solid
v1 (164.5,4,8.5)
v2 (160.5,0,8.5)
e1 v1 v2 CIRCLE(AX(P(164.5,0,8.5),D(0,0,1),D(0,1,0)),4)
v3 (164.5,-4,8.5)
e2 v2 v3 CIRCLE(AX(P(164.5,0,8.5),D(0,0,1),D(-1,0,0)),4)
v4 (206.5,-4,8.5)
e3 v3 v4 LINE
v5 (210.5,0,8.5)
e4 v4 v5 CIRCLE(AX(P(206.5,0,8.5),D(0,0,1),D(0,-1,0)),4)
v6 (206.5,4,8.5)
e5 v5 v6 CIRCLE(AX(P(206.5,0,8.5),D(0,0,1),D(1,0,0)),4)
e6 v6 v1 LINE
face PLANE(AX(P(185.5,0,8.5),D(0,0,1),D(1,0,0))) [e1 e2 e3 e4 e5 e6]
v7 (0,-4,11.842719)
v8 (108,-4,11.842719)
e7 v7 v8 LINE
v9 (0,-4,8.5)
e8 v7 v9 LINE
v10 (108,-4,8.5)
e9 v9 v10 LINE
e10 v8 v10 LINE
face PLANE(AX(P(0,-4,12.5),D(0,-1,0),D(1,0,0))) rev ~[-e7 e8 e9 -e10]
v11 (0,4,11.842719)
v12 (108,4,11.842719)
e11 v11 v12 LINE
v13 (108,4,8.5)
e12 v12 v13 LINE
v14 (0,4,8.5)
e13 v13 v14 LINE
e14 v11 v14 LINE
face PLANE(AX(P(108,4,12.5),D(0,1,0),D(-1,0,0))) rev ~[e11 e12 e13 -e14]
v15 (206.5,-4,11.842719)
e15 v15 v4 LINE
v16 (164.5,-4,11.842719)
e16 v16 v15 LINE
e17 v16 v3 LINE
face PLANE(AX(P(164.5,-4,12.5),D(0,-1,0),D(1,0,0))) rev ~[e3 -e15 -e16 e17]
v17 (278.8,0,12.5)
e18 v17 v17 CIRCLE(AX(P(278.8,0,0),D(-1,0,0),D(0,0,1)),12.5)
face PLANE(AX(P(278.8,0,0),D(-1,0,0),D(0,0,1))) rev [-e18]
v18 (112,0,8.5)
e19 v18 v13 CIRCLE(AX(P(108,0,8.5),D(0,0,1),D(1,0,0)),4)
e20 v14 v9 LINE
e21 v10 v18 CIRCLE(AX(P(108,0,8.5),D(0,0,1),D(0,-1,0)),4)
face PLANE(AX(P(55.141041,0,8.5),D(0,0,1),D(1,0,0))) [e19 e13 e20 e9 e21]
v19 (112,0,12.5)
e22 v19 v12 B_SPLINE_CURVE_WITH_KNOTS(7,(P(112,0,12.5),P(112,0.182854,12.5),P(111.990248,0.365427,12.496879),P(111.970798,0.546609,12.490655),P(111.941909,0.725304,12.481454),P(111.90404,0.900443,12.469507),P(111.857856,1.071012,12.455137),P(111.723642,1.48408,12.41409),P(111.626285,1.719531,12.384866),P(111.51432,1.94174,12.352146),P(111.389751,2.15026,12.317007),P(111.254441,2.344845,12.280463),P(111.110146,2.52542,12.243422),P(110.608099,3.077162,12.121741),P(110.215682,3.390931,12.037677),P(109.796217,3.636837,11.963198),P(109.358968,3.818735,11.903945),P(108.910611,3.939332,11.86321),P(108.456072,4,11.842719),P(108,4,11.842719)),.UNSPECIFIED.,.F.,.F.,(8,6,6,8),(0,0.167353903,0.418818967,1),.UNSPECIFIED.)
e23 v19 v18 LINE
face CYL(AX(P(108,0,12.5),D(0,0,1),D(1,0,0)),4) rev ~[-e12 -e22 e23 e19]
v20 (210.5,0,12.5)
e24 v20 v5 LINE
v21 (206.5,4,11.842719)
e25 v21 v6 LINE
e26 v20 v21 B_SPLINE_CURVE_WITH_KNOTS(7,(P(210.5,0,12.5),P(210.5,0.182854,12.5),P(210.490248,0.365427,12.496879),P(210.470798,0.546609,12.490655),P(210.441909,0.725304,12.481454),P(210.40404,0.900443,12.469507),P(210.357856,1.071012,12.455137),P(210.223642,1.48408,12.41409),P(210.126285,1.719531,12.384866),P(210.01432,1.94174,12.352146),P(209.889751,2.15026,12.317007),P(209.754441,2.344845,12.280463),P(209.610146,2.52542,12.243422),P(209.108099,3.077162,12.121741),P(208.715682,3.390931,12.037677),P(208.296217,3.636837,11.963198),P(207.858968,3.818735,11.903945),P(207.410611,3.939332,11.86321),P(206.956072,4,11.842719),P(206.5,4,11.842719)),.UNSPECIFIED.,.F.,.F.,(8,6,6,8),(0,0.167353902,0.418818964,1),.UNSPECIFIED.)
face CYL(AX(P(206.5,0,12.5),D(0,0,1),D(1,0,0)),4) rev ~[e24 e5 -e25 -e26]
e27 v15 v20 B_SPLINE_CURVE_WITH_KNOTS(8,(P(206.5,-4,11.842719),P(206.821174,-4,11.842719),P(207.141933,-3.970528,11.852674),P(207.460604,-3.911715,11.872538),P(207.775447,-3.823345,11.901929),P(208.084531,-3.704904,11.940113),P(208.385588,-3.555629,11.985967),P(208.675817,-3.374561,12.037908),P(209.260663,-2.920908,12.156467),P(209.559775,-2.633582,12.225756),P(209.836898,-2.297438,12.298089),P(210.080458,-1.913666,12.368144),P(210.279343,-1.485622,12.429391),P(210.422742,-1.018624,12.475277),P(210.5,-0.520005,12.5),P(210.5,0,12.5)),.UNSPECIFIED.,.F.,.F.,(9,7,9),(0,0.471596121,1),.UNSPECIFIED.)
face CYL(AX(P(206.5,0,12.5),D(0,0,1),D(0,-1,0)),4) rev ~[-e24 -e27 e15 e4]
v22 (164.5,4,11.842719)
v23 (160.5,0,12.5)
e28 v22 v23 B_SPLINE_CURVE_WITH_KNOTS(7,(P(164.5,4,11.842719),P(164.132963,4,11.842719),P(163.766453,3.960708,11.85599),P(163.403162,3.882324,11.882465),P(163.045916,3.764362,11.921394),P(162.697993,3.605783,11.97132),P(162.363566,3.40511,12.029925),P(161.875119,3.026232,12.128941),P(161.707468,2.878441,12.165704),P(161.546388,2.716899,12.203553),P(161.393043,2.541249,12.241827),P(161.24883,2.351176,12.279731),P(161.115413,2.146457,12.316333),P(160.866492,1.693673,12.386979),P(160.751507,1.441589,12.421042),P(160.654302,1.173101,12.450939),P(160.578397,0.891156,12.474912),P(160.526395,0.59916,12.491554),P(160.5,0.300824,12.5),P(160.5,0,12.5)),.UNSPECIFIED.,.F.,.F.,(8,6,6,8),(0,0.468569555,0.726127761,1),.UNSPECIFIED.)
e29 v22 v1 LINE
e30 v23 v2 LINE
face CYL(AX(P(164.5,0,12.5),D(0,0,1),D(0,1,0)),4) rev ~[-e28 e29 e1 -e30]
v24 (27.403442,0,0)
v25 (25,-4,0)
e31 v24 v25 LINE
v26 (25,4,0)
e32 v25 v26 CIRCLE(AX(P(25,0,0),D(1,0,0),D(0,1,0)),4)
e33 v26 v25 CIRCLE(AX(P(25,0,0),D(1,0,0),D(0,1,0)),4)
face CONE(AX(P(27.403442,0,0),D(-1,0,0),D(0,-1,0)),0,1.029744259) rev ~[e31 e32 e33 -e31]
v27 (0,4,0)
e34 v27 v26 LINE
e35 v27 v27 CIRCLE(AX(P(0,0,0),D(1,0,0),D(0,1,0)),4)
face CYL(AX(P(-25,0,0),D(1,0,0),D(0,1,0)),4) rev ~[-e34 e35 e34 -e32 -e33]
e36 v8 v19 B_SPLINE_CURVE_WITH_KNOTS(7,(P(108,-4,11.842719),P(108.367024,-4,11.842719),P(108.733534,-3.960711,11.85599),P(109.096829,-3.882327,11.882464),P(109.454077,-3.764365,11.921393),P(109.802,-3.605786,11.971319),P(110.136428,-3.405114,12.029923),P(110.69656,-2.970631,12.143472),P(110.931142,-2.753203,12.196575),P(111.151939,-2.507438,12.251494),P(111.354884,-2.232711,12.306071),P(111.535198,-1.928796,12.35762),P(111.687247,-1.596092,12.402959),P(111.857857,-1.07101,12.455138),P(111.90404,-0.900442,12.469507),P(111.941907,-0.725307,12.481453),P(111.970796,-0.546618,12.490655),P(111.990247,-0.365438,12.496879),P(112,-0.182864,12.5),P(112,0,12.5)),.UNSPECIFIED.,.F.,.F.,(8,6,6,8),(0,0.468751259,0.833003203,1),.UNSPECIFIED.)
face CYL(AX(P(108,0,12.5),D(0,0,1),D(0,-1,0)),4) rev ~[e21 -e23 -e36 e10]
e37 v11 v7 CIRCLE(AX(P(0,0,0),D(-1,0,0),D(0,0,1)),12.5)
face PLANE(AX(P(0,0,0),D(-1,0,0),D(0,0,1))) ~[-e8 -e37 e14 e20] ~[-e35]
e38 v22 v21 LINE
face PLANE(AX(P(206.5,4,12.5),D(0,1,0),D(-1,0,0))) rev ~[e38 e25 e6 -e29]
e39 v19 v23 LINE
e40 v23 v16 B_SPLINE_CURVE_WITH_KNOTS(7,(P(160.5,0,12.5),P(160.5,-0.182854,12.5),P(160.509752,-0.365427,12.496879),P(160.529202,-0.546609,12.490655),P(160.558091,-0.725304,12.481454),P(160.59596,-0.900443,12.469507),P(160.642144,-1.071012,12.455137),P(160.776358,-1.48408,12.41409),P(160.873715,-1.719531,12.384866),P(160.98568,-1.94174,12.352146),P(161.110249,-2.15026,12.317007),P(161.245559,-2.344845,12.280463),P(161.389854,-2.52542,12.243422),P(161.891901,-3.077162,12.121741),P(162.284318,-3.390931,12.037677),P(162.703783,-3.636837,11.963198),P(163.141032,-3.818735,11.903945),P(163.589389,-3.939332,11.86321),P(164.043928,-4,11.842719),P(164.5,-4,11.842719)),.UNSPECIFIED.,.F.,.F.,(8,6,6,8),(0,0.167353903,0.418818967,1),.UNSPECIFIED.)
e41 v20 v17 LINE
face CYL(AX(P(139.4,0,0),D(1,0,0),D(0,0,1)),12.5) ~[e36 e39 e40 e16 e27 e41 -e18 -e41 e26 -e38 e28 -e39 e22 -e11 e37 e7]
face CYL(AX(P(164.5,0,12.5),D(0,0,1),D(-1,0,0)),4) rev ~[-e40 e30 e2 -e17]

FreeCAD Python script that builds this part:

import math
import FreeCAD as App
import Part
import Sketcher
from FreeCAD import Vector

doc = App.newDocument("Part")
body = doc.addObject("PartDesign::Body", "Body")

# Sketch on XZ plane
sketch1 = body.newObject("Sketcher::SketchObject", "Sketch")
sketch1.AttachmentSupport = (doc.getObject("XZ_Plane"), [""])
sketch1.MapMode = "FlatFace"
sketch1.addGeometry([
    Part.LineSegment(Vector(0, 12, 0), Vector(0, 0, 0)),
    Part.LineSegment(Vector(0, 0, 0), Vector(279, 0, 0)),
    Part.LineSegment(Vector(279, 0, 0), Vector(279, 12, 0)),
    Part.LineSegment(Vector(279, 12, 0), Vector(0, 12, 0)),
], False)
sketch1.addConstraint([
    Sketcher.Constraint("Coincident", 0, 2, 1, 1),
    Sketcher.Constraint("Coincident", 1, 2, 2, 1),
    Sketcher.Constraint("Coincident", 2, 2, 3, 1),
    Sketcher.Constraint("Coincident", 3, 2, 0, 1),
    Sketcher.Constraint("Vertical", 0),
    Sketcher.Constraint("Horizontal", 1),
    Sketcher.Constraint("Vertical", 2),
    Sketcher.Constraint("Horizontal", 3),
    Sketcher.Constraint("Coincident", 0, 2, -1, 1),
    Sketcher.Constraint("DistanceX", 1, 1, 1, 2, 278.8),
    Sketcher.Constraint("DistanceY", 0, 2, 0, 1, 12.5),
])
revolution = body.newObject("PartDesign::Revolution", "Revolution")
revolution.Profile = sketch1
revolution.ReferenceAxis = (sketch1, ["H_Axis"])
revolution.Angle = 360

# Sketch on XY plane
sketch2 = body.newObject("Sketcher::SketchObject", "Sketch001")
sketch2.AttachmentSupport = (doc.getObject("XY_Plane"), [""])
sketch2.MapMode = "FlatFace"
sketch2.AttachmentOffset = App.Placement(Vector(0, 0, 12.5), App.Rotation())
sketch2.addGeometry([
    Part.LineSegment(Vector(0, 4, 0), Vector(0, -4, 0)),  # 0
    Part.LineSegment(Vector(0, -4, 0), Vector(108, -4, 0)),  # 1
    Part.ArcOfCircle(Part.Circle(Vector(108, 0, 0), Vector(0, 0, 1), 4), math.radians(-90), math.radians(0)),  # 2
    Part.ArcOfCircle(Part.Circle(Vector(108, 0, 0), Vector(0, 0, 1), 4), math.radians(0), math.radians(90)),  # 3
    Part.LineSegment(Vector(108, 4, 0), Vector(0, 4, 0)),  # 4
], False)
sketch2.addConstraint([
    Sketcher.Constraint("Coincident", 0, 2, 1, 1),
    Sketcher.Constraint("Tangent", 1, 2, 2, 1),
    Sketcher.Constraint("Tangent", 2, 2, 3, 1),
    Sketcher.Constraint("Tangent", 3, 2, 4, 1),
    Sketcher.Constraint("Coincident", 4, 2, 0, 1),
    Sketcher.Constraint("Vertical", 0),
    Sketcher.Constraint("Horizontal", 1),
    Sketcher.Constraint("Horizontal", 4),
    Sketcher.Constraint("Equal", 2, 3),
    Sketcher.Constraint("Symmetric", 0, 2, 4, 2, -1, 1),
    Sketcher.Constraint("PointOnObject", 2, 2, -1),
    Sketcher.Constraint("Radius", 2, 4.0),
    Sketcher.Constraint("DistanceX", 1, 1, 1, 2, 108.0),
])
pocket1 = body.newObject("PartDesign::Pocket", "Pocket")
pocket1.Profile = sketch2
pocket1.Length = 4

# Sketch on YZ plane
sketch3 = body.newObject("Sketcher::SketchObject", "Sketch002")
sketch3.AttachmentSupport = (doc.getObject("YZ_Plane"), [""])
sketch3.MapMode = "FlatFace"
sketch3.addGeometry(Part.Circle(Vector(0, 0, 0), Vector(0, 0, 1), 4), False)
sketch3.addConstraint([
    Sketcher.Constraint("Coincident", 0, 3, -1, 1),
    Sketcher.Constraint("Diameter", 0, 8.0),
])
doc.recompute()
hole = body.newObject("PartDesign::Hole", "Hole")
hole.Profile = sketch3
hole.ThreadType = "None"
hole.Diameter = 8
hole.DepthType = "Dimension"
hole.Depth = 25
hole.DrillPoint = "Angled"
hole.DrillPointAngle = 118
hole.Reversed = True

# Sketch on XY plane
sketch4 = body.newObject("Sketcher::SketchObject", "Sketch003")
sketch4.AttachmentSupport = (doc.getObject("XY_Plane"), [""])
sketch4.MapMode = "FlatFace"
sketch4.AttachmentOffset = App.Placement(Vector(0, 0, 12.5), App.Rotation())
sketch4.addGeometry([
    Part.ArcOfCircle(Part.Circle(Vector(206.5, 0, 0), Vector(0, 0, 1), 4), math.radians(0), math.radians(90)),  # 0
    Part.LineSegment(Vector(206.5, 4, 0), Vector(164.5, 4, 0)),  # 1
    Part.ArcOfCircle(Part.Circle(Vector(164.5, 0, 0), Vector(0, 0, 1), 4), math.radians(90), math.radians(180)),  # 2
    Part.ArcOfCircle(Part.Circle(Vector(164.5, 0, 0), Vector(0, 0, 1), 4), math.radians(180), math.radians(270)),  # 3
    Part.LineSegment(Vector(164.5, -4, 0), Vector(206.5, -4, 0)),  # 4
    Part.ArcOfCircle(Part.Circle(Vector(206.5, 0, 0), Vector(0, 0, 1), 4), math.radians(-90), math.radians(0)),  # 5
], False)
sketch4.addConstraint([
    Sketcher.Constraint("Tangent", 0, 2, 1, 1),
    Sketcher.Constraint("Tangent", 1, 2, 2, 1),
    Sketcher.Constraint("Tangent", 2, 2, 3, 1),
    Sketcher.Constraint("Tangent", 3, 2, 4, 1),
    Sketcher.Constraint("Tangent", 4, 2, 5, 1),
    Sketcher.Constraint("Tangent", 5, 2, 0, 1),
    Sketcher.Constraint("Horizontal", 1),
    Sketcher.Constraint("Horizontal", 4),
    Sketcher.Constraint("Equal", 0, 2),
    Sketcher.Constraint("Equal", 2, 3),
    Sketcher.Constraint("PointOnObject", 0, 3, -1),
    Sketcher.Constraint("PointOnObject", 2, 2, -1),
    Sketcher.Constraint("PointOnObject", 5, 2, -1),
    Sketcher.Constraint("Radius", 0, 4.0),
    Sketcher.Constraint("DistanceX", 1, 2, 1, 1, 42.0),
    Sketcher.Constraint("DistanceX", -1, 1, 0, 3, 206.5),
])
pocket2 = body.newObject("PartDesign::Pocket", "Pocket001")
pocket2.Profile = sketch4
pocket2.Length = 4

doc.recompute()
